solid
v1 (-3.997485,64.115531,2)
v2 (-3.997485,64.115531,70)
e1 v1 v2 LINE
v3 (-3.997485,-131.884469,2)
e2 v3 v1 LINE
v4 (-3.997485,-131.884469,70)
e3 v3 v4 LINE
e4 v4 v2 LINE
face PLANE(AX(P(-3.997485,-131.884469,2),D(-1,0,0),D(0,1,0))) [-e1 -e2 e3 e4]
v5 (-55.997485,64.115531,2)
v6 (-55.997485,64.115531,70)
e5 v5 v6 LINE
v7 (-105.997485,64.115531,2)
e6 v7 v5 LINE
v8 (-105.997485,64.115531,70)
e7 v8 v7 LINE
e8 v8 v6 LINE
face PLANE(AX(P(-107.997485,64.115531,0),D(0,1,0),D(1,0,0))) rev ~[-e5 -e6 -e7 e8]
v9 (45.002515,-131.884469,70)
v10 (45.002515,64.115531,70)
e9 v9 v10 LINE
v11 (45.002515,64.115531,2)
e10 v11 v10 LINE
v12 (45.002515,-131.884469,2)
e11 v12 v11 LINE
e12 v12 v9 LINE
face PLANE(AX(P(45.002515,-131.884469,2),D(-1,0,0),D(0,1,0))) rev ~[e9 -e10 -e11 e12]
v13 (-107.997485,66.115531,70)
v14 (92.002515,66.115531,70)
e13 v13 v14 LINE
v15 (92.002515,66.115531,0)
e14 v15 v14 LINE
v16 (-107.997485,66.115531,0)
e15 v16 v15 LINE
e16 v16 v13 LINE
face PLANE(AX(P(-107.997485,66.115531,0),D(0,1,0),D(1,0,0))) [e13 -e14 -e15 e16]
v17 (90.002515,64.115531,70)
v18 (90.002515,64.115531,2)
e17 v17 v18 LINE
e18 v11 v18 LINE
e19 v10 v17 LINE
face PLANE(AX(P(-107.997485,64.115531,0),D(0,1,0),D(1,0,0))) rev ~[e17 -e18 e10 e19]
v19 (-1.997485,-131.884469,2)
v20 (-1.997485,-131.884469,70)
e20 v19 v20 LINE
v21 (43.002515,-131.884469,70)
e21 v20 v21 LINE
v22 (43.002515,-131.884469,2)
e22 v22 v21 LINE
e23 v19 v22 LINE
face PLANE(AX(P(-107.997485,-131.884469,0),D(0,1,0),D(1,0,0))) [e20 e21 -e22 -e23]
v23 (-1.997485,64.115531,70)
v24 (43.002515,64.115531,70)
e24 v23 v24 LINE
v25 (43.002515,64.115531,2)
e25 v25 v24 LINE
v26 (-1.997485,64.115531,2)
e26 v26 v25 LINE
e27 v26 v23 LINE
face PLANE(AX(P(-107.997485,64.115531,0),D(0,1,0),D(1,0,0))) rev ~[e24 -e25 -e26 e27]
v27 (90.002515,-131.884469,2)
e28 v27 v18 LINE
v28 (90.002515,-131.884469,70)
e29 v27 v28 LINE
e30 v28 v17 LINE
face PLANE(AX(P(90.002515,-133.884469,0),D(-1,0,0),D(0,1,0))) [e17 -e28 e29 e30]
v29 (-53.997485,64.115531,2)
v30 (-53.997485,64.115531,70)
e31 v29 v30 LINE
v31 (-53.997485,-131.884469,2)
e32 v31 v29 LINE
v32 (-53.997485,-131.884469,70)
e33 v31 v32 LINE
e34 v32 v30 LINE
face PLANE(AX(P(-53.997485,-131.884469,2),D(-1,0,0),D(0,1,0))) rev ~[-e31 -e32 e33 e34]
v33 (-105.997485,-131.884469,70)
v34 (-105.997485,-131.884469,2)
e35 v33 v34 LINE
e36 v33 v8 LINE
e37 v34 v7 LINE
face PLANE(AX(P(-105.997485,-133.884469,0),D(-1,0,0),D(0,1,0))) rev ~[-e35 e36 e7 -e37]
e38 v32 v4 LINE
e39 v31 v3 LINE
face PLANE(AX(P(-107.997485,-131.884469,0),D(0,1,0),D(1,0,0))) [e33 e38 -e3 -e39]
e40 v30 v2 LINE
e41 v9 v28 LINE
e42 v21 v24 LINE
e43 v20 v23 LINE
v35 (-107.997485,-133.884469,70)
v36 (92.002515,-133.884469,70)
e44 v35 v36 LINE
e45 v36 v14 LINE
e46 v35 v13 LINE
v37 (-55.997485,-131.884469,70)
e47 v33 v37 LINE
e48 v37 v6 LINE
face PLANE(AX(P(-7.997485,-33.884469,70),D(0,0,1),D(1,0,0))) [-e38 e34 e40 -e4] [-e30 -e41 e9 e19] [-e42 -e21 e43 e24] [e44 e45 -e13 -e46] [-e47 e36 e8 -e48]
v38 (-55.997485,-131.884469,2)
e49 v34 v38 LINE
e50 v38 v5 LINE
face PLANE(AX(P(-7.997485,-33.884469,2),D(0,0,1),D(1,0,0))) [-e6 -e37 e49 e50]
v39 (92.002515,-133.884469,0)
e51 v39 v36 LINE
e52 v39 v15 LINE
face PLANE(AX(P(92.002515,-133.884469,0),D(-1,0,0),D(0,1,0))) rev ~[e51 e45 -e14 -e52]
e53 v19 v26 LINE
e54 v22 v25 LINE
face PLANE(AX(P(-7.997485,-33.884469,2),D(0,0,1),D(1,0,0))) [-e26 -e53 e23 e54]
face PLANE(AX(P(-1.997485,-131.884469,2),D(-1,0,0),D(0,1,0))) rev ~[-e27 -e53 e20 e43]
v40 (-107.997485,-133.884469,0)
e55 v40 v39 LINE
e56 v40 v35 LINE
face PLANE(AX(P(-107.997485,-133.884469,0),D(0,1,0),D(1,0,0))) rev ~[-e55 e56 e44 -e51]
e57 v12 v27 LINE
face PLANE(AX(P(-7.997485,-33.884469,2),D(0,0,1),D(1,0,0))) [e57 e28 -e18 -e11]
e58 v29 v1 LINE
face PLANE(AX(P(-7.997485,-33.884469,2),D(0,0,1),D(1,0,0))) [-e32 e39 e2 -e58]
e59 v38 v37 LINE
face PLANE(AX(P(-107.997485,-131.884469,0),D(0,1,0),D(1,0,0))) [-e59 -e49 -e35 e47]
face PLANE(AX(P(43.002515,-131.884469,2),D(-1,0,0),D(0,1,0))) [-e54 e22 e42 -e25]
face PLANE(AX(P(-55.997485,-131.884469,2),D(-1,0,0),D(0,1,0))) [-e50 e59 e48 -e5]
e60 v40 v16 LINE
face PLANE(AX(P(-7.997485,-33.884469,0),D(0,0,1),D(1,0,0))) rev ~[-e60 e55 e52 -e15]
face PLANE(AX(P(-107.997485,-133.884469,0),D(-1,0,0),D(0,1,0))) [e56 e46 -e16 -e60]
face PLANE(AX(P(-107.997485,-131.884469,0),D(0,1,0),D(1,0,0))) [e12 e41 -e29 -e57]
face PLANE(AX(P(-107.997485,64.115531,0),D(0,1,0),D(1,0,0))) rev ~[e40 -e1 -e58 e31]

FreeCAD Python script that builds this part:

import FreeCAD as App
import Part
import Sketcher
from FreeCAD import Vector


def faces_at(feature, points):
    """Names of the faces that lie closest to the given points."""
    faces = feature.Shape.Faces
    near = lambda p: min(range(len(faces)), key=lambda i: faces[i].distToShape(Part.Vertex(*p))[0])
    return sorted({f"Face{near(p) + 1}" for p in points})

doc = App.newDocument("Part")
body = doc.addObject("PartDesign::Body", "Body")

# Sketch on XY plane
sketch1 = body.newObject("Sketcher::SketchObject", "Sketch")
sketch1.AttachmentSupport = (doc.getObject("XY_Plane"), [""])
sketch1.MapMode = "FlatFace"
sketch1.addGeometry([
    Part.LineSegment(Vector(-107.997485, 66.115531, 0), Vector(-107.997485, -133.884469, 0)),
    Part.LineSegment(Vector(-107.997485, -133.884469, 0), Vector(92.002515, -133.884469, 0)),
    Part.LineSegment(Vector(92.002515, -133.884469, 0), Vector(92.002515, 66.115531, 0)),
    Part.LineSegment(Vector(92.002515, 66.115531, 0), Vector(-107.997485, 66.115531, 0)),
], False)
sketch1.addConstraint([
    Sketcher.Constraint("Coincident", 0, 2, 1, 1),
    Sketcher.Constraint("Coincident", 1, 2, 2, 1),
    Sketcher.Constraint("Coincident", 2, 2, 3, 1),
    Sketcher.Constraint("Coincident", 3, 2, 0, 1),
    Sketcher.Constraint("Vertical", 0),
    Sketcher.Constraint("Horizontal", 1),
    Sketcher.Constraint("Vertical", 2),
    Sketcher.Constraint("Horizontal", 3),
    Sketcher.Constraint("Equal", 3, 0),
    Sketcher.Constraint("DistanceX", 1, 1, 1, 2, 200.0),
    Sketcher.Constraint("DistanceY", 0, 2, -1, 1, 133.884469),
    Sketcher.Constraint("DistanceX", 0, 2, -1, 1, 107.997485),
])
pad1 = body.newObject("PartDesign::Pad", "Pad")
pad1.Profile = sketch1
pad1.Length = 70
doc.recompute()

thickness = body.newObject("PartDesign::Thickness", "Thickness")
thickness.Base = (pad1, faces_at(pad1, [(-7.997, -33.884, 70)]))
thickness.Value = 2
thickness.Reversed = True
thickness.Join = "Arc"

# Sketch on XY plane
sketch2 = body.newObject("Sketcher::SketchObject", "Sketch001")
sketch2.AttachmentSupport = (doc.getObject("XY_Plane"), [""])
sketch2.MapMode = "FlatFace"
sketch2.AttachmentOffset = App.Placement(Vector(0, 0, 2), App.Rotation())
sketch2.addGeometry([
    Part.LineSegment(Vector(-55.997485, 64.115531, 0), Vector(-55.997485, -131.884469, 0)),  # 0
    Part.LineSegment(Vector(-55.997485, -131.884469, 0), Vector(-53.997485, -131.884469, 0)),  # 1
    Part.LineSegment(Vector(-53.997485, -131.884469, 0), Vector(-53.997485, 64.115531, 0)),  # 2
    Part.LineSegment(Vector(-53.997485, 64.115531, 0), Vector(-55.997485, 64.115531, 0)),  # 3
    Part.LineSegment(Vector(-3.997485, 64.115531, 0), Vector(-3.997485, -131.884469, 0)),  # 4
    Part.LineSegment(Vector(-3.997485, -131.884469, 0), Vector(-1.997485, -131.884469, 0)),  # 5
    Part.LineSegment(Vector(-1.997485, -131.884469, 0), Vector(-1.997485, 64.115531, 0)),  # 6
    Part.LineSegment(Vector(-1.997485, 64.115531, 0), Vector(-3.997485, 64.115531, 0)),  # 7
    Part.LineSegment(Vector(43.002515, 64.115531, 0), Vector(43.002515, -131.884469, 0)),  # 8
    Part.LineSegment(Vector(43.002515, -131.884469, 0), Vector(45.002515, -131.884469, 0)),  # 9
    Part.LineSegment(Vector(45.002515, -131.884469, 0), Vector(45.002515, 64.115531, 0)),  # 10
    Part.LineSegment(Vector(45.002515, 64.115531, 0), Vector(43.002515, 64.115531, 0)),  # 11
], False)
sketch2.addConstraint([
    Sketcher.Constraint("Coincident", 0, 2, 1, 1),
    Sketcher.Constraint("Coincident", 1, 2, 2, 1),
    Sketcher.Constraint("Coincident", 2, 2, 3, 1),
    Sketcher.Constraint("Coincident", 3, 2, 0, 1),
    Sketcher.Constraint("Coincident", 4, 2, 5, 1),
    Sketcher.Constraint("Coincident", 5, 2, 6, 1),
    Sketcher.Constraint("Coincident", 6, 2, 7, 1),
    Sketcher.Constraint("Coincident", 7, 2, 4, 1),
    Sketcher.Constraint("Coincident", 8, 2, 9, 1),
    Sketcher.Constraint("Coincident", 9, 2, 10, 1),
    Sketcher.Constraint("Coincident", 10, 2, 11, 1),
    Sketcher.Constraint("Coincident", 11, 2, 8, 1),
    Sketcher.Constraint("Vertical", 0),
    Sketcher.Constraint("Horizontal", 1),
    Sketcher.Constraint("Vertical", 2),
    Sketcher.Constraint("Horizontal", 3),
    Sketcher.Constraint("Vertical", 4),
    Sketcher.Constraint("Horizontal", 5),
    Sketcher.Constraint("Vertical", 6),
    Sketcher.Constraint("Horizontal", 7),
    Sketcher.Constraint("Vertical", 8),
    Sketcher.Constraint("Horizontal", 9),
    Sketcher.Constraint("Vertical", 10),
    Sketcher.Constraint("Horizontal", 11),
    Sketcher.Constraint("Horizontal", 1, 2, 4, 2),
    Sketcher.Constraint("Horizontal", 3, 2, 6, 2),
    Sketcher.Constraint("Horizontal", 5, 2, 8, 2),
    Sketcher.Constraint("Horizontal", 7, 2, 10, 2),
    Sketcher.Constraint("Equal", 3, 5),
    Sketcher.Constraint("Equal", 7, 9),
    Sketcher.Constraint("DistanceX", 1, 1, 1, 2, 2.0),
    Sketcher.Constraint("DistanceY", 0, 2, 0, 1, 196.0),
    Sketcher.Constraint("DistanceX", 1, 2, 4, 2, 50.0),
    Sketcher.Constraint("DistanceX", 5, 2, 8, 2, 45.0),
    Sketcher.Constraint("DistanceY", 0, 2, -1, 1, 131.884469),
    Sketcher.Constraint("DistanceX", 0, 2, -1, 1, 55.997485),
])
pad2 = body.newObject("PartDesign::Pad", "Pad001")
pad2.Profile = sketch2
pad2.Length = 68

doc.recompute()
